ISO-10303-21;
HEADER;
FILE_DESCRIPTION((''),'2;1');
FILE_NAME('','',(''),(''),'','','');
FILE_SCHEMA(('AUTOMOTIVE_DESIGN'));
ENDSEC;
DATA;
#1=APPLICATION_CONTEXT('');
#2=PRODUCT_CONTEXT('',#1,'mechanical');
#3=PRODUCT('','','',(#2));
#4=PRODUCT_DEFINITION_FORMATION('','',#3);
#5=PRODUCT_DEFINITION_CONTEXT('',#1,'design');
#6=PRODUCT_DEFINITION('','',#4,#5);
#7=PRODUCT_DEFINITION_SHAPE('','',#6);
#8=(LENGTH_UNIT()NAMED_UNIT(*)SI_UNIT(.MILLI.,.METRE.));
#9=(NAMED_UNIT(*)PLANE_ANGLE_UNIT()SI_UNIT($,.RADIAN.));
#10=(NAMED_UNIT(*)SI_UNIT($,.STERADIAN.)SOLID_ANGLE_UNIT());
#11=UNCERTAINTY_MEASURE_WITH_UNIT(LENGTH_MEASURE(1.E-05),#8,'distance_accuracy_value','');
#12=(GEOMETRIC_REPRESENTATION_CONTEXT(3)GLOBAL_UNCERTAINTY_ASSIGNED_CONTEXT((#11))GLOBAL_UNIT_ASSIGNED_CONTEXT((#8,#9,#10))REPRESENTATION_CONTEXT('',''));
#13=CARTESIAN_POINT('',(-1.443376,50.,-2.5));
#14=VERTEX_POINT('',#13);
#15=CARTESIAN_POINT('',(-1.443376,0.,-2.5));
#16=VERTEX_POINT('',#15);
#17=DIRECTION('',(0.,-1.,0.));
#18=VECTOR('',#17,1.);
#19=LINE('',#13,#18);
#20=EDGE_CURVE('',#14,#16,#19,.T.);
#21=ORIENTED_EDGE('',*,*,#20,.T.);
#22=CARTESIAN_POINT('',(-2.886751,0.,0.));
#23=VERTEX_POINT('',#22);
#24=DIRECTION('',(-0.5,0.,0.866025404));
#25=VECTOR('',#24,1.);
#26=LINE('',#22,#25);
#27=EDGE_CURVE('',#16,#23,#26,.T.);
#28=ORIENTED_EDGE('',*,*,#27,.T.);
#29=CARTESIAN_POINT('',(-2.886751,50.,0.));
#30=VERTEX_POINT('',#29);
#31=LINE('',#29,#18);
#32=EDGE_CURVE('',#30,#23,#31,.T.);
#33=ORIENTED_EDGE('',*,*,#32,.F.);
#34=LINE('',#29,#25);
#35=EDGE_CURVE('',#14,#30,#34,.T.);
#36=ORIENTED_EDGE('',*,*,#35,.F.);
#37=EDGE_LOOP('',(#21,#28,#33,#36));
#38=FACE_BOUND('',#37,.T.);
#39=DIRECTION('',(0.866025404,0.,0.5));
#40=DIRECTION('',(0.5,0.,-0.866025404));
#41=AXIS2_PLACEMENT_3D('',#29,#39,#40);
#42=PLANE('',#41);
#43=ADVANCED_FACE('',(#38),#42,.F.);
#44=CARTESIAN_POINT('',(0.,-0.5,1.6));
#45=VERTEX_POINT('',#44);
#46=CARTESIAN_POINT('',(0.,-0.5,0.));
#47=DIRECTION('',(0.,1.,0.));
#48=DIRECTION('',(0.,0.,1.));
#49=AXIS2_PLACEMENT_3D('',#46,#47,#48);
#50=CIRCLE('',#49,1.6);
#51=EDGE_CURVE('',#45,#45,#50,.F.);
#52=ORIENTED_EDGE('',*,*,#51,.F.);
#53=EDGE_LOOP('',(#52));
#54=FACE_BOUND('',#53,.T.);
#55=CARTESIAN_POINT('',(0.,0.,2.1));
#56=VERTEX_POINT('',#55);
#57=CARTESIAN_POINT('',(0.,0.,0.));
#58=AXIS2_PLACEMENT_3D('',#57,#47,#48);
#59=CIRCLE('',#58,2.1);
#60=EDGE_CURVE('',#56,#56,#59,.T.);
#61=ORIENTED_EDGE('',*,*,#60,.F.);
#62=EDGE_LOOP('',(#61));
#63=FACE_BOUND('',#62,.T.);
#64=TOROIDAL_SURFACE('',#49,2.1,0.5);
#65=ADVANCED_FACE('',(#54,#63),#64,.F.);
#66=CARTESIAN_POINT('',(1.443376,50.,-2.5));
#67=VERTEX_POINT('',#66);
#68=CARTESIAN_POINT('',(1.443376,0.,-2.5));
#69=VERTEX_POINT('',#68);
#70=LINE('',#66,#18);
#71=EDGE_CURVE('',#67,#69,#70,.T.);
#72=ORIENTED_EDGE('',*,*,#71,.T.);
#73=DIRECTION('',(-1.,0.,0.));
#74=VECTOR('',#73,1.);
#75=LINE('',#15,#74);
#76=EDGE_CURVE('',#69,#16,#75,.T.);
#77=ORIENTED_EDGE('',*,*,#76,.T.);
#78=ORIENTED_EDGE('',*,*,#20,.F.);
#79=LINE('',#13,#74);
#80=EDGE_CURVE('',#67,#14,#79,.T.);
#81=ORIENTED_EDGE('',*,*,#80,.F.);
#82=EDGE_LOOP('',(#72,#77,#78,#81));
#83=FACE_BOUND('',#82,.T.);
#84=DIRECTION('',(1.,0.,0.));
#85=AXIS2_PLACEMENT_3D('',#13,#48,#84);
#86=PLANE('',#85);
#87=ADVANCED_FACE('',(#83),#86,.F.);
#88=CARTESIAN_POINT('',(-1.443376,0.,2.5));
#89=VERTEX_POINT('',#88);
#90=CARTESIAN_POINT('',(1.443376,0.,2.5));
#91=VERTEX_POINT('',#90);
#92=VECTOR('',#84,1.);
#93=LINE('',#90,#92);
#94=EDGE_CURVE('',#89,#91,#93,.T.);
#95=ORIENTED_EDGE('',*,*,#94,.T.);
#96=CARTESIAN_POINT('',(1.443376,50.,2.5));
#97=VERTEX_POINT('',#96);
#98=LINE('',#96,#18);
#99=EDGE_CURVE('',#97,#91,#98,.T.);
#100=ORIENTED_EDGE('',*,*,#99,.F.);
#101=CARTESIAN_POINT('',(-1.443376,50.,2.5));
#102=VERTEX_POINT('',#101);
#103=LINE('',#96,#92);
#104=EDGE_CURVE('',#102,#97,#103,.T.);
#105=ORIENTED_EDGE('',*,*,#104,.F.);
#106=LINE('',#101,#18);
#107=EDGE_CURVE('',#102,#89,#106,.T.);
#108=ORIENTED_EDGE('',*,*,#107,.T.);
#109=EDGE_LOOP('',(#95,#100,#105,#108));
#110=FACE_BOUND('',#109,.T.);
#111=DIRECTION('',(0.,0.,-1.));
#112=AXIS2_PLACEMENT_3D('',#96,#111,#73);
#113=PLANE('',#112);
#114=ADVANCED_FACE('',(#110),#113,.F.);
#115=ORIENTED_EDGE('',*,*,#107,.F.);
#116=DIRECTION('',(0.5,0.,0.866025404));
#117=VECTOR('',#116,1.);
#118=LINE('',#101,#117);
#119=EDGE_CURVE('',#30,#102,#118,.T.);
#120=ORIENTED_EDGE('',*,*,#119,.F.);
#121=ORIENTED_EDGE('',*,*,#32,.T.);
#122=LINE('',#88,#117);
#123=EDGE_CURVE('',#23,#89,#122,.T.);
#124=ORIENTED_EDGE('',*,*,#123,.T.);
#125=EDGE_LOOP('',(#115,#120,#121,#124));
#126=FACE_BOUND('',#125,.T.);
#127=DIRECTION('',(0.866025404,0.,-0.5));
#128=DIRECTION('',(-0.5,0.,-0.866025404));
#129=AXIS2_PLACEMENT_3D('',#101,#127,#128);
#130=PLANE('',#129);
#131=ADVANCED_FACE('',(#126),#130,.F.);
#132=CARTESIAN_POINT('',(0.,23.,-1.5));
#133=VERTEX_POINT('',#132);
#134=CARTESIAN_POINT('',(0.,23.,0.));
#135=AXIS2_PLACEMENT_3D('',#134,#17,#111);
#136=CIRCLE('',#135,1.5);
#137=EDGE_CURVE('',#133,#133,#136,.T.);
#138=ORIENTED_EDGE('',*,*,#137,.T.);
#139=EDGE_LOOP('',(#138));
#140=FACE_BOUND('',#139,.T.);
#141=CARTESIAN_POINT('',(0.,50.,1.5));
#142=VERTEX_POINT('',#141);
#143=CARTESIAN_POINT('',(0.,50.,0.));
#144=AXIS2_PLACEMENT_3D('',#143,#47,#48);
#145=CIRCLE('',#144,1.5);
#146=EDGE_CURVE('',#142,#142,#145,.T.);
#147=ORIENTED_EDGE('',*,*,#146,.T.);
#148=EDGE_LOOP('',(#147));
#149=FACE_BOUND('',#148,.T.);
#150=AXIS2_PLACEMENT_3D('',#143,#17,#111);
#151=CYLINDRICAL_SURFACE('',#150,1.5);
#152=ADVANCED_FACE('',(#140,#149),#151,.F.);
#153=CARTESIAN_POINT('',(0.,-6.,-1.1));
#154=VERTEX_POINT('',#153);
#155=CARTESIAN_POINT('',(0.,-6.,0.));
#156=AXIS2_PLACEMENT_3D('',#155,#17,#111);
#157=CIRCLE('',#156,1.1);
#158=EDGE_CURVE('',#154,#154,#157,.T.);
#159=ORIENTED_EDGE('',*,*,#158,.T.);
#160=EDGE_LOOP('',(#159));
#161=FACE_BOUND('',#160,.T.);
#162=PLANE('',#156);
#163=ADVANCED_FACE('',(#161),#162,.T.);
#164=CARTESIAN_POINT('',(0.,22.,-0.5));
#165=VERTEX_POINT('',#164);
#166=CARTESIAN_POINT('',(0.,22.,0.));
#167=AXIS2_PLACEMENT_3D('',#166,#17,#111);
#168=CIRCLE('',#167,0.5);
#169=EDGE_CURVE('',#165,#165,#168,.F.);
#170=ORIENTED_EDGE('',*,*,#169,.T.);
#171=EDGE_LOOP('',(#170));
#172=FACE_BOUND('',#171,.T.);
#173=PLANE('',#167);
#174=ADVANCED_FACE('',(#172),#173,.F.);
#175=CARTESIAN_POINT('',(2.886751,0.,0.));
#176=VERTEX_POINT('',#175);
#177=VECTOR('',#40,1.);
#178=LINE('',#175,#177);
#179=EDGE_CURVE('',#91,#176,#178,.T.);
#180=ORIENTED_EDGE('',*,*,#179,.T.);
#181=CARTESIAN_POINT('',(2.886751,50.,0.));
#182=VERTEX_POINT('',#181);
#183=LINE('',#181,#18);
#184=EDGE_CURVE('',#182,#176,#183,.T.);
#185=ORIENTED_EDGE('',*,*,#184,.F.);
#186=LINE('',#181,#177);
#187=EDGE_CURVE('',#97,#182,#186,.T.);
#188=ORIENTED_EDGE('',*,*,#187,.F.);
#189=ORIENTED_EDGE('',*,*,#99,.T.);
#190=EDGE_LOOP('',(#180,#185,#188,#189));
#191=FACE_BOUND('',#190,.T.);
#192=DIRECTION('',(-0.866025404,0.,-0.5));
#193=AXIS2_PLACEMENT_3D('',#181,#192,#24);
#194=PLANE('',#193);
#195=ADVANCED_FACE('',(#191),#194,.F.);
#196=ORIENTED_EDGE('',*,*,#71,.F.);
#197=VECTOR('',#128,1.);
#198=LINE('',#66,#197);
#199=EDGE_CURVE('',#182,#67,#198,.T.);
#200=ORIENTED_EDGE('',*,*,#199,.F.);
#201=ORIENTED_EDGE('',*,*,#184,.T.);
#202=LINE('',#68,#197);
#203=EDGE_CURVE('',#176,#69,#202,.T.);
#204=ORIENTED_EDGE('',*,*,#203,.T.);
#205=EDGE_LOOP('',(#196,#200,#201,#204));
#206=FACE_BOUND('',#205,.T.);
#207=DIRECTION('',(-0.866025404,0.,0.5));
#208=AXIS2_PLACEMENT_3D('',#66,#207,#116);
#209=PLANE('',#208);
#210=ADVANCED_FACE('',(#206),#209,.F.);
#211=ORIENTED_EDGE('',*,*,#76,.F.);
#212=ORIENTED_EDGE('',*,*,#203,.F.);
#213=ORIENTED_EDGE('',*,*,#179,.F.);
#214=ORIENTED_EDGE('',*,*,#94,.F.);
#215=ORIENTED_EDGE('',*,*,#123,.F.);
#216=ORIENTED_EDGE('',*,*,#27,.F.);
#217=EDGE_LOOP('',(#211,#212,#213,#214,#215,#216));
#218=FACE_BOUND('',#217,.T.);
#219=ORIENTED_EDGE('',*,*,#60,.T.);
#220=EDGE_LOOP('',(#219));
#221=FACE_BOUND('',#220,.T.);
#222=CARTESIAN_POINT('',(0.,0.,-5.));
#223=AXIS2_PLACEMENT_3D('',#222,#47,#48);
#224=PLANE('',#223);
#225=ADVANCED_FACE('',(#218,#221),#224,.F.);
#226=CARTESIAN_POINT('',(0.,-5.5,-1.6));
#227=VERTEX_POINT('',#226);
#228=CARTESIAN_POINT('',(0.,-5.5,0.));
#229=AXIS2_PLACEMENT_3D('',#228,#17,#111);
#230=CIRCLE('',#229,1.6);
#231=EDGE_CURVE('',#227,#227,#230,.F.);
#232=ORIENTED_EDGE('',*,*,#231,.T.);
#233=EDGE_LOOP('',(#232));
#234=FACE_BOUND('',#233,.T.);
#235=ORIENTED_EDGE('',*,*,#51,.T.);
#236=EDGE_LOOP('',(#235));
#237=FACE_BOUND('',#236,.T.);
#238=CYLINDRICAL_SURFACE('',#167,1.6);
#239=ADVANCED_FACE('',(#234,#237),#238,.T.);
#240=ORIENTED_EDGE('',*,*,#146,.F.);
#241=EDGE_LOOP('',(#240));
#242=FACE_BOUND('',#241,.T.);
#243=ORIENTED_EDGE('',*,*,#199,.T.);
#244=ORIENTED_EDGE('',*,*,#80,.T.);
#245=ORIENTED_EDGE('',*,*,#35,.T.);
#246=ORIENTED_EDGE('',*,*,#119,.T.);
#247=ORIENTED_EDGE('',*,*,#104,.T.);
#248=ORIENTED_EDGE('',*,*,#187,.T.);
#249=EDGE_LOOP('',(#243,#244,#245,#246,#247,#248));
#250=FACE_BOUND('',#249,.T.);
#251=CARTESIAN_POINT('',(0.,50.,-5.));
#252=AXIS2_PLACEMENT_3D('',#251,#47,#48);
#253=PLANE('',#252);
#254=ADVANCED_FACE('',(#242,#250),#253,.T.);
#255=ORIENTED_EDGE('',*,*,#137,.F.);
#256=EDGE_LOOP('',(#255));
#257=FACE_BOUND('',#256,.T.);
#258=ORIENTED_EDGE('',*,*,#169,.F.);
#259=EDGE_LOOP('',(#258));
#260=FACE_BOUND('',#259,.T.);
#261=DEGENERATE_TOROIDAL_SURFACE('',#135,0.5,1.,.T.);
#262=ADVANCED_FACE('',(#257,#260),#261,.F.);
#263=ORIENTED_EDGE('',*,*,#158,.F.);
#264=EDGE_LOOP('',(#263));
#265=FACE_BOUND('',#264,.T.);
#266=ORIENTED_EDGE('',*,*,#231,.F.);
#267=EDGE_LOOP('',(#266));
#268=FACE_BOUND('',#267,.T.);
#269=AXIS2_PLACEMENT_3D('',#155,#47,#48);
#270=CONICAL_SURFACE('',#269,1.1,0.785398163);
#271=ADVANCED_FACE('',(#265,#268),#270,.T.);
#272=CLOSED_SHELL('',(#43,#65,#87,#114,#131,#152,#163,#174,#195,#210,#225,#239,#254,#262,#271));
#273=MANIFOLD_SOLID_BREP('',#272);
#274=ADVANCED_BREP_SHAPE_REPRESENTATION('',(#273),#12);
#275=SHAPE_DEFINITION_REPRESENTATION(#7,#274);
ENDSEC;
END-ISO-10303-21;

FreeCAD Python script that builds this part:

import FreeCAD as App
import Part
import Sketcher

V = App.Vector
Q = App.Units.Quantity


def edges_at(feature, points):
    """Names of the edges that pass closest to the given points."""
    edges = feature.Shape.Edges
    near = lambda p: min(range(len(edges)), key=lambda i: edges[i].distToShape(Part.Vertex(*p))[0])
    return sorted({f"Edge{near(p) + 1}" for p in points})


def add_polygon(sketch, points):
    """Adds a closed chain of lines whose ends are joined by coincident constraints."""
    first, n = sketch.GeometryCount, len(points)
    for a, b in zip(points, points[1:] + points[:1]):
        sketch.addGeometry(Part.LineSegment(App.Vector(*a, 0), App.Vector(*b, 0)), False)
    for i in range(n):
        sketch.addConstraint(Sketcher.Constraint("Coincident", first + i, 2, first + (i + 1) % n, 1))

doc = App.newDocument("Part")
body = doc.addObject("PartDesign::Body", "Body")

sketch1 = doc.addObject("Sketcher::SketchObject", "Sketch")
body.addObject(sketch1)
sketch1.AttachmentSupport = (doc.XZ_Plane, [""])
sketch1.MapMode = "FlatFace"
add_polygon(sketch1, [(1.4, -2.5), (-1.4, -2.5), (-2.9, 0), (-1.4, 2.5), (1.4, 2.5), (2.9, 0)])
sketch1.addGeometry(Part.Circle(V(0, 0, 0), V(0, 0, 1), 1.5), False)
sketch1.addConstraint([
    Sketcher.Constraint("Horizontal", 0),
    Sketcher.Constraint("Horizontal", 3),
    Sketcher.Constraint("Coincident", 6, 3, -1, 1),
    Sketcher.Constraint("Symmetric", 0, 2, 3, 2, -1, 1),
    Sketcher.Constraint("Symmetric", 1, 2, 4, 2, -1, 1),
    Sketcher.Constraint("PointOnObject", 1, 2, -1),
    Sketcher.Constraint("Parallel", 2, 5),
    Sketcher.Constraint("Vertical", 0, 2, 2, 2),
    Sketcher.Constraint("Diameter", 6, Q("3 mm")),
    Sketcher.Constraint("Angle", 1, Q("120 deg")),
    Sketcher.Constraint("DistanceY", 0, 2, 2, 2, Q("5 mm")),
    Sketcher.Constraint("DistanceX", 0, 2, 0, 1, Q("2.886751 mm")),
])
pad1 = doc.addObject("PartDesign::Pad", "Pad")
body.addObject(pad1)
pad1.Profile = sketch1
pad1.Length = 50
pad1.Reversed = True

sketch2 = doc.addObject("Sketcher::SketchObject", "Sketch001")
body.addObject(sketch2)
sketch2.AttachmentSupport = (doc.XZ_Plane, [""])
sketch2.MapMode = "FlatFace"
sketch2.addGeometry(Part.Circle(V(0, 0, 0), V(0, 0, 1), 1.6), False)
sketch2.addConstraint([
    Sketcher.Constraint("Coincident", 0, 3, -1, 1),
    Sketcher.Constraint("Diameter", 0, Q("3.2 mm")),
])
pad2 = doc.addObject("PartDesign::Pad", "Pad001")
body.addObject(pad2)
pad2.Profile = sketch2
pad2.Type = "TwoLengths"
pad2.Length = 6
pad2.Length2 = 22
doc.recompute()

chamfer = doc.addObject("PartDesign::Chamfer", "Chamfer")
body.addObject(chamfer)
chamfer.Base = (pad2, edges_at(pad2, [(0, -6, 1.6)]))
chamfer.Size = 0.5
doc.recompute()

fillet = doc.addObject("PartDesign::Fillet", "Fillet")
body.addObject(fillet)
fillet.Base = (chamfer, edges_at(chamfer, [(0, 0, 1.6)]))
fillet.Radius = 0.5
doc.recompute()

fillet2 = doc.addObject("PartDesign::Fillet", "Fillet001")
body.addObject(fillet2)
fillet2.Base = (fillet, edges_at(fillet, [(0, 22, -1.5)]))
fillet2.Radius = 1

doc.recompute()
